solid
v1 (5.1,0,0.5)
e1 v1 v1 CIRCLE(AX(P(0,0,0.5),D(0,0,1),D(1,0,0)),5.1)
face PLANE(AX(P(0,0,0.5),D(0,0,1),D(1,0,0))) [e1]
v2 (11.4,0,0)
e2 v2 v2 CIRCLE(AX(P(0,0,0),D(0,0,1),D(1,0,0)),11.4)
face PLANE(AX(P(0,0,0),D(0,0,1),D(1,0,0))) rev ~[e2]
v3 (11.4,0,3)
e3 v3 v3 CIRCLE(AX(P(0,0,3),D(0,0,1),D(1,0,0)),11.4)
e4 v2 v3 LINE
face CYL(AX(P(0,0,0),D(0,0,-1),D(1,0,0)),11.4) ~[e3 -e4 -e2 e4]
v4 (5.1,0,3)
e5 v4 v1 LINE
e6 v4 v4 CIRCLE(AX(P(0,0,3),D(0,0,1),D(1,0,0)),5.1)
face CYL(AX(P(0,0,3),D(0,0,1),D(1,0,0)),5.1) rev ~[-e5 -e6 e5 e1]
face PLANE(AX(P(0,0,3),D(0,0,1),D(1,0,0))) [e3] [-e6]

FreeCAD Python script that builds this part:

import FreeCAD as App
import Part
import Sketcher
from FreeCAD import Vector
Q = App.Units.Quantity

doc = App.newDocument("Part")
params = doc.addObject("Spreadsheet::Sheet", "Params")
for row, (alias, value) in enumerate([
    ("sketch1_diameter", "22.8 mm"),
    ("pad1_length", "3 mm"),
    ("sketch2_diameter", "10.2 mm"),
    ("pocket1_length", "2.5 mm"),
], start=1):
    params.set(f"A{row}", alias)
    params.set(f"B{row}", "=" + value)
    params.setAlias(f"B{row}", alias)

body = doc.addObject("PartDesign::Body", "Body")

# Sketch on XY plane
sketch1 = body.newObject("Sketcher::SketchObject", "Sketch")
sketch1.AttachmentSupport = (doc.getObject("XY_Plane"), [""])
sketch1.MapMode = "FlatFace"
sketch1.addGeometry(Part.Circle(Vector(0, 0, 0), Vector(0, 0, 1), 11), False)
sketch1.addConstraint([
    Sketcher.Constraint("Coincident", 0, 3, -1, 1),
    Sketcher.Constraint("Diameter", 0, Q("22.8 mm")),
])
sketch1.setExpression("Constraints[1]", "Params.sketch1_diameter")
pad1 = body.newObject("PartDesign::Pad", "Pad")
pad1.Profile = sketch1
pad1.setExpression("Length", "Params.pad1_length")

# Sketch on XY plane
sketch2 = body.newObject("Sketcher::SketchObject", "Sketch001")
sketch2.AttachmentSupport = (doc.getObject("XY_Plane"), [""])
sketch2.MapMode = "FlatFace"
sketch2.AttachmentOffset = App.Placement(Vector(0, 0, 3), App.Rotation())
sketch2.addGeometry(Part.Circle(Vector(0, 0, 0), Vector(0, 0, 1), 5), False)
sketch2.addConstraint([
    Sketcher.Constraint("Coincident", 0, 3, -1, 1),
    Sketcher.Constraint("Diameter", 0, Q("10.2 mm")),
])
sketch2.setExpression("Constraints[1]", "Params.sketch2_diameter")
pocket1 = body.newObject("PartDesign::Pocket", "Pocket")
pocket1.Profile = sketch2
pocket1.setExpression("Length", "Params.pocket1_length")

doc.recompute()
